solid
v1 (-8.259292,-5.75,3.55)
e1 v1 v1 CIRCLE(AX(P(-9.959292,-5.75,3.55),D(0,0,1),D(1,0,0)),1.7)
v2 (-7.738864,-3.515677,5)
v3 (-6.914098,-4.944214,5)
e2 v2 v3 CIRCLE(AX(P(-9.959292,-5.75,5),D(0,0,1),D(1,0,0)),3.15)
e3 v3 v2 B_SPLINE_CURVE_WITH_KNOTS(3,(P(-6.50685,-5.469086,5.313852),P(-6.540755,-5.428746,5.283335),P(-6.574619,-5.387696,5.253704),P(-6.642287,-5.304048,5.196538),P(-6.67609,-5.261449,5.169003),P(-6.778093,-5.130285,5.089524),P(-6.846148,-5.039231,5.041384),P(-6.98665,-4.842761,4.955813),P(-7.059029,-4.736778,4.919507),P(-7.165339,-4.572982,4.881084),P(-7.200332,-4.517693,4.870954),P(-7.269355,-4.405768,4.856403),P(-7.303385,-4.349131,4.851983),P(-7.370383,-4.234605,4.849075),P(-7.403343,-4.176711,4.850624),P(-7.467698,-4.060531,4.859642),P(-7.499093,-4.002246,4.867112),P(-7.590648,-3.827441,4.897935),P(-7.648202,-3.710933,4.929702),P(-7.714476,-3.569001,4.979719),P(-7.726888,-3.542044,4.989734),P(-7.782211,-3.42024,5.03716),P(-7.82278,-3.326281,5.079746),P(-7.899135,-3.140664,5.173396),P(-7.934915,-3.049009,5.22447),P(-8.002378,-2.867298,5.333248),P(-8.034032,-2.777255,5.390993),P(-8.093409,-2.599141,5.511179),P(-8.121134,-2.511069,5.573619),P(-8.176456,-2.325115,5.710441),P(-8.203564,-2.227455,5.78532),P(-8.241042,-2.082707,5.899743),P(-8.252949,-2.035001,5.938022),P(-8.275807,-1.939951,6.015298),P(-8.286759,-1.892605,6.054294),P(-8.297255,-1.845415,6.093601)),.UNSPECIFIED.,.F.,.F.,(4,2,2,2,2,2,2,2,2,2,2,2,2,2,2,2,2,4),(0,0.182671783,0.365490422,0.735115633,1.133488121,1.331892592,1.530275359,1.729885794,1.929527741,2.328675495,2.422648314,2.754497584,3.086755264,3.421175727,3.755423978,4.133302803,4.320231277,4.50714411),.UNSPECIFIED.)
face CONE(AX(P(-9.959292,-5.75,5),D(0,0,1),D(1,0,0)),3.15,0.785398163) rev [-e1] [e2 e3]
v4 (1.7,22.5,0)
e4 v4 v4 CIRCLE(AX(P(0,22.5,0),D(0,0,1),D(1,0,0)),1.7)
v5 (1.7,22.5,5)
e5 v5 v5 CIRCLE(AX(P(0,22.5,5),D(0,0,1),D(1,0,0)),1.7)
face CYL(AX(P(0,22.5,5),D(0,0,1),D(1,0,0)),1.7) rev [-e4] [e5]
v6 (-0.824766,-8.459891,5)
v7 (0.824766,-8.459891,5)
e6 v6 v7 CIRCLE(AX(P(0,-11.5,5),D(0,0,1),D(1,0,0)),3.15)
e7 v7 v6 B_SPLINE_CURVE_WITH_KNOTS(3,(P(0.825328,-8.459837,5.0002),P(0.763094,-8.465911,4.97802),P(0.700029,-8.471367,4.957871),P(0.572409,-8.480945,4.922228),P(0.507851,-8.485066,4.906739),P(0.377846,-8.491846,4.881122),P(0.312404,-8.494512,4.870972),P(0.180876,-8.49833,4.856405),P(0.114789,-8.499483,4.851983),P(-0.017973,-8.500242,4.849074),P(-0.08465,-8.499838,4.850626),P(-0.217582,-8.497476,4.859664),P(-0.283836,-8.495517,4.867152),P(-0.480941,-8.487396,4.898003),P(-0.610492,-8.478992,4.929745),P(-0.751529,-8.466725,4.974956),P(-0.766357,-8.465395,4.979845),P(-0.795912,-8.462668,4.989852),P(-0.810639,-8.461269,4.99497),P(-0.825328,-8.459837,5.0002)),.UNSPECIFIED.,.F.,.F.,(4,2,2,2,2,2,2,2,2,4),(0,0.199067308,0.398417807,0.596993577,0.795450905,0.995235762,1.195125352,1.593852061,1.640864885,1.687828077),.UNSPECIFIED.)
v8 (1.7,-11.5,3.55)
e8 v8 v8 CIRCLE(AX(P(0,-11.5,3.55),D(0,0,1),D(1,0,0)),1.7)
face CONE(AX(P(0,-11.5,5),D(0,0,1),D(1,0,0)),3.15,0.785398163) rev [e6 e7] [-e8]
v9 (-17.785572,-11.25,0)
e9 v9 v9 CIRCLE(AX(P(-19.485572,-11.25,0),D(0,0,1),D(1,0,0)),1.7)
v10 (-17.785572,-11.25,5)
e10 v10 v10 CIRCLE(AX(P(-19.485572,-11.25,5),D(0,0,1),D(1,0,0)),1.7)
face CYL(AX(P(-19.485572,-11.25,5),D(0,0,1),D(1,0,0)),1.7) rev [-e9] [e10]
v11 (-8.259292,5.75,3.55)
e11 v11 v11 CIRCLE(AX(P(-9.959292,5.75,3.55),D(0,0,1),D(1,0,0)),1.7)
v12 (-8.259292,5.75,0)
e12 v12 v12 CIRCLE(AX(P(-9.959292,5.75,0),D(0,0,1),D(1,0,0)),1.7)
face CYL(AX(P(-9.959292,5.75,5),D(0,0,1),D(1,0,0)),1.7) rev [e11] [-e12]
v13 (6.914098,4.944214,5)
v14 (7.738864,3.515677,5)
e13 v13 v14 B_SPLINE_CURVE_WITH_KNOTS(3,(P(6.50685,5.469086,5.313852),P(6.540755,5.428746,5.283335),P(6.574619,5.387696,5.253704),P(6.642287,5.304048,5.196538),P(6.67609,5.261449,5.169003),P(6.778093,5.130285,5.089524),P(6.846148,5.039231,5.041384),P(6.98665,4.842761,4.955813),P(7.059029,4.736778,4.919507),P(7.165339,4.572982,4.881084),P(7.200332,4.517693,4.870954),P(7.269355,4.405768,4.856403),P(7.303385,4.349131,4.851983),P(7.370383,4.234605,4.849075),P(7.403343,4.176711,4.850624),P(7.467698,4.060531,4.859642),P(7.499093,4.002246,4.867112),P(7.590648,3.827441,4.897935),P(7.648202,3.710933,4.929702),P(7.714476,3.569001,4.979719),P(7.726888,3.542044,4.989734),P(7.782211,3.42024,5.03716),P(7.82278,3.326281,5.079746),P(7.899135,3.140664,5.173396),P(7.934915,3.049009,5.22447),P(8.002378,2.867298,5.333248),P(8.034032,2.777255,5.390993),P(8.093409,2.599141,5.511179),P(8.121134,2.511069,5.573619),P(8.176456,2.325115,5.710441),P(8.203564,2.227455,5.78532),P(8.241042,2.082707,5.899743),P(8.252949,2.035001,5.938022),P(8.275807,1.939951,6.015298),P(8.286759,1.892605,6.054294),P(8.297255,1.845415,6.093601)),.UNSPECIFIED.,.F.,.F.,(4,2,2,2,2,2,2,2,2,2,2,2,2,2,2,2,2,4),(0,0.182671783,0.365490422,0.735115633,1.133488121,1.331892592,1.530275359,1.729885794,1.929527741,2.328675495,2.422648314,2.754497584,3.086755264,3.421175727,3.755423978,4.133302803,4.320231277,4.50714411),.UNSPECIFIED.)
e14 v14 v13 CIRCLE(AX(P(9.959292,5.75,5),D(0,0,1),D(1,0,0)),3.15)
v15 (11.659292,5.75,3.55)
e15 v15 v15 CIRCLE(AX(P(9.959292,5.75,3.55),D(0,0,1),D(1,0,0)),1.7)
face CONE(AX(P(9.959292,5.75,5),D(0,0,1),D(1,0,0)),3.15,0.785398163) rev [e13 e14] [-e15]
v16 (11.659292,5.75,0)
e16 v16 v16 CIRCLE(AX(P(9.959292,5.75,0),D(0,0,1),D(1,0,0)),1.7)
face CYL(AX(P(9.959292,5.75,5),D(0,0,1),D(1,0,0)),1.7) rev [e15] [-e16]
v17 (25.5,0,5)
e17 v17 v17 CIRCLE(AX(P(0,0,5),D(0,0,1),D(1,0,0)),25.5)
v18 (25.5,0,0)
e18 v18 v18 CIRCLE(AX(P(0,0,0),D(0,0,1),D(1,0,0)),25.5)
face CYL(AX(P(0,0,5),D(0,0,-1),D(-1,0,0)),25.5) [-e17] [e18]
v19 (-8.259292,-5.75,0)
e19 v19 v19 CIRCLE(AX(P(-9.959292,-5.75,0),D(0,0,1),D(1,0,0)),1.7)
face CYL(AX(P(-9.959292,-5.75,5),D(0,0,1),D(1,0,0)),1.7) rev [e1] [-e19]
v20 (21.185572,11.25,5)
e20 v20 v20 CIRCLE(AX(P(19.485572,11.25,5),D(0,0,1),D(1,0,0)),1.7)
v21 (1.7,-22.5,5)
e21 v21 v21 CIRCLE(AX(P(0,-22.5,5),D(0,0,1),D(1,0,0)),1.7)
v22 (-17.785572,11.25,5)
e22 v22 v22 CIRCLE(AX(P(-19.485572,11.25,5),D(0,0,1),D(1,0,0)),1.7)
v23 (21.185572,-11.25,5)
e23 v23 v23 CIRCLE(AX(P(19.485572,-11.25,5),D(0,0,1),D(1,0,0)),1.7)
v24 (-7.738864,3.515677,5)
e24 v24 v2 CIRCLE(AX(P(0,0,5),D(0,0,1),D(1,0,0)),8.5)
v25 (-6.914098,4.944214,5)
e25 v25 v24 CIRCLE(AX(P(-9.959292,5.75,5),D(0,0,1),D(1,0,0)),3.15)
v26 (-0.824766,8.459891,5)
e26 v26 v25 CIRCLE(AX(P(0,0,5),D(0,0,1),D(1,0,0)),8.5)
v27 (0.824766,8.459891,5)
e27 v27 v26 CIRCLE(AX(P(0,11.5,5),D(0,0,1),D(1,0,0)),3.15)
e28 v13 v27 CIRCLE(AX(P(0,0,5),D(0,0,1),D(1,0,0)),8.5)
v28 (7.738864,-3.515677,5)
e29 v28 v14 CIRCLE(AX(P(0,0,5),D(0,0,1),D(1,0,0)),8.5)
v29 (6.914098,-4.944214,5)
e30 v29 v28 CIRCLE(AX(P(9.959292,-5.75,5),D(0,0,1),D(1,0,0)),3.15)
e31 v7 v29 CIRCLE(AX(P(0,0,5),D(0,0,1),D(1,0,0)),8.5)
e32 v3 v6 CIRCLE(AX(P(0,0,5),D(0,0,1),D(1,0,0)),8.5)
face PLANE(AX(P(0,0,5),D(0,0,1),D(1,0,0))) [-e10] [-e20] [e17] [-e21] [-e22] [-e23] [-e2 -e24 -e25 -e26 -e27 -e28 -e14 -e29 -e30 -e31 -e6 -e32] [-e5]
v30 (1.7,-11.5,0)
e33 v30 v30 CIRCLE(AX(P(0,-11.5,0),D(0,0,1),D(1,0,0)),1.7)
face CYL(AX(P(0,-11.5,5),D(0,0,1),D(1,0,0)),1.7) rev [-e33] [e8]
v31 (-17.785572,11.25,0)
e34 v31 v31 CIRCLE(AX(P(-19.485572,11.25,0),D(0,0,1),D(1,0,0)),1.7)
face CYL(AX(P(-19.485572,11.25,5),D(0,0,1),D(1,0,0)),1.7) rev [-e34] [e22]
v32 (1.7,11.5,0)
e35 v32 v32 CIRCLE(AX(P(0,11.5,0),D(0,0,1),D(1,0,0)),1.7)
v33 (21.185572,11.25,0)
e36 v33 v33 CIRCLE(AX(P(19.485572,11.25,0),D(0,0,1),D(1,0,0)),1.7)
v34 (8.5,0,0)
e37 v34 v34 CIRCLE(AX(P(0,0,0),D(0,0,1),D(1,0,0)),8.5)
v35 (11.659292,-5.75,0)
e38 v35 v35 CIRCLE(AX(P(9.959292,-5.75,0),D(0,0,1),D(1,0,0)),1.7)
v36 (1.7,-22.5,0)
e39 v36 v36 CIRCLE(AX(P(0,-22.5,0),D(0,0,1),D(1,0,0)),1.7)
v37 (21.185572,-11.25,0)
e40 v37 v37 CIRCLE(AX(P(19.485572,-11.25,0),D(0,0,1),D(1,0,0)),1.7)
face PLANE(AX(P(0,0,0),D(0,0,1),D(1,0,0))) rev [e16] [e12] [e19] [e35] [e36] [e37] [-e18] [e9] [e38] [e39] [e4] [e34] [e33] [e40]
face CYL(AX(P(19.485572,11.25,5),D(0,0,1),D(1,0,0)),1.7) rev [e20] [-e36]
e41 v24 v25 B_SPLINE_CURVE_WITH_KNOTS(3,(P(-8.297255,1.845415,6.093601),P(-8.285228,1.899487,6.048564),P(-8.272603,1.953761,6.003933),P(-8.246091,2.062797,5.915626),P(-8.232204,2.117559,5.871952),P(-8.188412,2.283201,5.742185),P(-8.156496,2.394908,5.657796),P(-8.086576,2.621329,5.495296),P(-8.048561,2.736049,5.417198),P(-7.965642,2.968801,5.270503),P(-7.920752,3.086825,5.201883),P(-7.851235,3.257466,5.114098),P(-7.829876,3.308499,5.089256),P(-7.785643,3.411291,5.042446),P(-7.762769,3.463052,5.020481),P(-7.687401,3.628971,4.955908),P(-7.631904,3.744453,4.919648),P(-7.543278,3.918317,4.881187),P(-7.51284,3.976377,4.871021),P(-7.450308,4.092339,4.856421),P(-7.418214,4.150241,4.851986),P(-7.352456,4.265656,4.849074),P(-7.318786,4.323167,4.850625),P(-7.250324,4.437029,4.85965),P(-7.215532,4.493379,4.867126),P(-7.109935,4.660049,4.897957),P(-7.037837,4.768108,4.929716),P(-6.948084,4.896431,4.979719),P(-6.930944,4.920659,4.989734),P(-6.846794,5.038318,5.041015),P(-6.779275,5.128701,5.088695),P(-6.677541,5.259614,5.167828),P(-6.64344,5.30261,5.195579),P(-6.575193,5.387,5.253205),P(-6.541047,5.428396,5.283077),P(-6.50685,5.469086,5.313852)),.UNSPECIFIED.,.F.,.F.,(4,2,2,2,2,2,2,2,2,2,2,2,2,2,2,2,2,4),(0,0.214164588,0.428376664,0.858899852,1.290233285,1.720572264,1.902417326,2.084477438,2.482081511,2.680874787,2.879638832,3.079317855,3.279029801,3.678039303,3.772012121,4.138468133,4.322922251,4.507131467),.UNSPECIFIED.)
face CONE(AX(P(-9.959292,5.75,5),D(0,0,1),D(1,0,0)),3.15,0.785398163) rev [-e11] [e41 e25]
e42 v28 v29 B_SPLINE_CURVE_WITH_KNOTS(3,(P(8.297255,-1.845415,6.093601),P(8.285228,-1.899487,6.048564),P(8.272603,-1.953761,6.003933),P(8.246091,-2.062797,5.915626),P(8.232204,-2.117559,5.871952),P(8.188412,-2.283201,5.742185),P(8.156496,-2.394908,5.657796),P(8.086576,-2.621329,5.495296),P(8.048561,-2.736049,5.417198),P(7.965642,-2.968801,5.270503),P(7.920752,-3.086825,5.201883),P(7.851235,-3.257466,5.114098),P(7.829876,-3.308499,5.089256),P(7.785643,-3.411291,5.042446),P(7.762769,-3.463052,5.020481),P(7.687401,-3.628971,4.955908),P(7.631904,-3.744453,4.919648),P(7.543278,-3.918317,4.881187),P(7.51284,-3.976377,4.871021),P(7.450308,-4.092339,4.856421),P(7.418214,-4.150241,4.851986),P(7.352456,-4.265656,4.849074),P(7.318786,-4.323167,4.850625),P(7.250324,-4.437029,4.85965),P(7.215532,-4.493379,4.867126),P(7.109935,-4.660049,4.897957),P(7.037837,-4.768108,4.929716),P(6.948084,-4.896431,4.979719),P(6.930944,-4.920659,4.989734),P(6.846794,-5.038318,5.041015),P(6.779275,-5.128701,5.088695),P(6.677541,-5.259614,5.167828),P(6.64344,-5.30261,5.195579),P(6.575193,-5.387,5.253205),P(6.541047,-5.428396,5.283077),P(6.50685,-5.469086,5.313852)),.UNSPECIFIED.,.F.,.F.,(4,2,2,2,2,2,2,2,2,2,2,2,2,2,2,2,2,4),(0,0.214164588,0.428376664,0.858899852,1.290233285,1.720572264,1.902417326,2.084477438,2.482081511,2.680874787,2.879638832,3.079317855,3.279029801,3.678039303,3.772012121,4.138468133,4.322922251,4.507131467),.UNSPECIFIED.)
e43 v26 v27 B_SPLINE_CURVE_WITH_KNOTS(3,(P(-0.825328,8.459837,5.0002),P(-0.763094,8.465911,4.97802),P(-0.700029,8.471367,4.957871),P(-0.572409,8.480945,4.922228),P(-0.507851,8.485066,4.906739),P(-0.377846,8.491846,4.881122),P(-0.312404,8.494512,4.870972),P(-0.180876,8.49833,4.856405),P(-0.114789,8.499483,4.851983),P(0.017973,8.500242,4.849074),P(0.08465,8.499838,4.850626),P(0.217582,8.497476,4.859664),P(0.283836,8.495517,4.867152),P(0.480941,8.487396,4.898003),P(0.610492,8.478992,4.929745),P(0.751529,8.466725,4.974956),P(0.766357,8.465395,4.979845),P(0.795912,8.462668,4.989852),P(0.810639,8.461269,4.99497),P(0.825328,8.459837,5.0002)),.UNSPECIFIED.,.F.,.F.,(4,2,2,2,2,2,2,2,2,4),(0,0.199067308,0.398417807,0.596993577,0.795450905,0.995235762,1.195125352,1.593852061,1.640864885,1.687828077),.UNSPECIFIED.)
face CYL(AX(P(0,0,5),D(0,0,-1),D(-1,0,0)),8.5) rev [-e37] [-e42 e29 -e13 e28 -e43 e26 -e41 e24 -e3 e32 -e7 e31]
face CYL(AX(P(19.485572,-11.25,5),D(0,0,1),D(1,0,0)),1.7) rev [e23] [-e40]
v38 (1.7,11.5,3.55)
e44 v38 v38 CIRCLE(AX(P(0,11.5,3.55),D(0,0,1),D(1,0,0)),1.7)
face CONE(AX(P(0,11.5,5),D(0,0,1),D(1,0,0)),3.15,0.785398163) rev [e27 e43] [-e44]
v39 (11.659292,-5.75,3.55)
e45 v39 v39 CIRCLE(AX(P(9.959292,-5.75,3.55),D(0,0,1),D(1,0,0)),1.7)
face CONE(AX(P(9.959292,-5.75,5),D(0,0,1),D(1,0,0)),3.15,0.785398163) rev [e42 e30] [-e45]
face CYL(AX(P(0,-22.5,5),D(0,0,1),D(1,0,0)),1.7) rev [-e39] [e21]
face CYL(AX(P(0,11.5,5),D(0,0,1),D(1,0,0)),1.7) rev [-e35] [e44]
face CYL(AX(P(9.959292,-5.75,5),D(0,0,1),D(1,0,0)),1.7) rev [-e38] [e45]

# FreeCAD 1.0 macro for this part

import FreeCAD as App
import Part
import Sketcher
from FreeCAD import Vector
Q = App.Units.Quantity

doc = App.newDocument("Part")
body = doc.addObject("PartDesign::Body", "Body")

sketch1 = doc.addObject("Sketcher::SketchObject", "Sketch")
body.addObject(sketch1)
sketch1.AttachmentSupport = (doc.XY_Plane, [""])
sketch1.MapMode = "FlatFace"
sketch1.addGeometry(Part.Circle(Vector(0, 0, 0), Vector(0, 0, 1), 26), False)
sketch1.addGeometry(Part.Circle(Vector(0, 0, 0), Vector(0, 0, 1), 8), False)
sketch1.addConstraint(Sketcher.Constraint("Coincident", 0, 3, -1, 1))
sketch1.addConstraint(Sketcher.Constraint("Coincident", 1, 3, -1, 1))
sketch1.addConstraint(Sketcher.Constraint("Diameter", 0, 51.0))
sketch1.addConstraint(Sketcher.Constraint("Diameter", 1, 17.0))
pad1 = doc.addObject("PartDesign::Pad", "Pad")
body.addObject(pad1)
pad1.Profile = sketch1
pad1.Length = 5

sketch2 = doc.addObject("Sketcher::SketchObject", "Sketch001")
body.addObject(sketch2)
sketch2.AttachmentSupport = (doc.YZ_Plane, [""])
sketch2.MapMode = "FlatFace"
sketch2.addGeometry(Part.LineSegment(Vector(22.5, -6, 0), Vector(22.5, 5, 0)), False)
sketch2.addGeometry(Part.LineSegment(Vector(22.5, 5, 0), Vector(20.8, 5, 0)), False)
sketch2.addGeometry(Part.LineSegment(Vector(20.8, 5, 0), Vector(20.8, -5, 0)), False)
sketch2.addGeometry(Part.LineSegment(Vector(20.8, -5, 0), Vector(22.5, -6, 0)), False)
sketch2.addGeometry(Part.LineSegment(Vector(22.5, 5, 0), Vector(22.5, -6, 0)), True)
sketch2.addConstraint(Sketcher.Constraint("Coincident", 0, 2, 1, 1))
sketch2.addConstraint(Sketcher.Constraint("Coincident", 1, 2, 2, 1))
sketch2.addConstraint(Sketcher.Constraint("Coincident", 2, 2, 3, 1))
sketch2.addConstraint(Sketcher.Constraint("Coincident", 3, 2, 0, 1))
sketch2.addConstraint(Sketcher.Constraint("Vertical", 0))
sketch2.addConstraint(Sketcher.Constraint("Horizontal", 1))
sketch2.addConstraint(Sketcher.Constraint("Vertical", 2))
sketch2.addConstraint(Sketcher.Constraint("Vertical", 4))
sketch2.addConstraint(Sketcher.Constraint("Coincident", 4, 1, 0, 2))
sketch2.addConstraint(Sketcher.Constraint("Equal", 0, 4))
sketch2.addConstraint(Sketcher.Constraint("DistanceY", 2, 2, 2, 1, 10.0))
sketch2.addConstraint(Sketcher.Constraint("Angle", 3, Q("-31 deg")))
sketch2.addConstraint(Sketcher.Constraint("DistanceX", 1, 2, 1, 1, 1.7))
sketch2.addConstraint(Sketcher.Constraint("DistanceY", -1, 1, 0, 2, 5.0))
sketch2.addConstraint(Sketcher.Constraint("DistanceX", -1, 1, 0, 2, 22.5))
groove = doc.addObject("PartDesign::Groove", "Groove")
body.addObject(groove)
groove.Profile = sketch2
groove.ReferenceAxis = (sketch2, ["Axis0"])
groove.Angle = 360

sketch3 = doc.addObject("Sketcher::SketchObject", "Sketch002")
body.addObject(sketch3)
sketch3.AttachmentSupport = (doc.YZ_Plane, [""])
sketch3.MapMode = "FlatFace"
sketch3.addGeometry(Part.LineSegment(Vector(11.5, -6, 0), Vector(11.5, 5, 0)), False)
sketch3.addGeometry(Part.LineSegment(Vector(11.5, 5, 0), Vector(8.3, 5, 0)), False)
sketch3.addGeometry(Part.LineSegment(Vector(8.3, 5, 0), Vector(9.8, 3.5, 0)), False)
sketch3.addGeometry(Part.LineSegment(Vector(9.8, 3.5, 0), Vector(9.8, -5, 0)), False)
sketch3.addGeometry(Part.LineSegment(Vector(9.8, -5, 0), Vector(11.5, -6, 0)), False)
sketch3.addGeometry(Part.LineSegment(Vector(11.5, 5, 0), Vector(11.5, -6, 0)), True)
sketch3.addConstraint(Sketcher.Constraint("Coincident", 0, 2, 1, 1))
sketch3.addConstraint(Sketcher.Constraint("Coincident", 1, 2, 2, 1))
sketch3.addConstraint(Sketcher.Constraint("Coincident", 2, 2, 3, 1))
sketch3.addConstraint(Sketcher.Constraint("Coincident", 3, 2, 4, 1))
sketch3.addConstraint(Sketcher.Constraint("Coincident", 4, 2, 0, 1))
sketch3.addConstraint(Sketcher.Constraint("Vertical", 0))
sketch3.addConstraint(Sketcher.Constraint("Horizontal", 1))
sketch3.addConstraint(Sketcher.Constraint("Vertical", 3))
sketch3.addConstraint(Sketcher.Constraint("Vertical", 5))
sketch3.addConstraint(Sketcher.Constraint("Coincident", 5, 1, 0, 2))
sketch3.addConstraint(Sketcher.Constraint("Equal", 0, 5))
sketch3.addConstraint(Sketcher.Constraint("Angle", 2, Q("-45 deg")))
sketch3.addConstraint(Sketcher.Constraint("Angle", 4, Q("-31 deg")))
sketch3.addConstraint(Sketcher.Constraint("DistanceY", -1, 1, 0, 2, 5.0))
sketch3.addConstraint(Sketcher.Constraint("DistanceY", 3, 2, -1, 1, 5.0))
sketch3.addConstraint(Sketcher.Constraint("DistanceX", 1, 2, 1, 1, 3.15))
sketch3.addConstraint(Sketcher.Constraint("DistanceY", 3, 2, 3, 1, 8.55))
sketch3.addConstraint(Sketcher.Constraint("DistanceX", -1, 1, 0, 2, 11.5))
groove2 = doc.addObject("PartDesign::Groove", "Groove001")
body.addObject(groove2)
groove2.Profile = sketch3
groove2.ReferenceAxis = (sketch3, ["Axis0"])
groove2.Angle = 360
doc.recompute()

polarpattern = doc.addObject("PartDesign::PolarPattern", "PolarPattern")
body.addObject(polarpattern)
polarpattern.Originals = [groove, groove2]
polarpattern.Axis = (doc.Z_Axis, [""])
polarpattern.Angle = 360
polarpattern.Occurrences = 6
body.Tip = polarpattern

doc.recompute()
